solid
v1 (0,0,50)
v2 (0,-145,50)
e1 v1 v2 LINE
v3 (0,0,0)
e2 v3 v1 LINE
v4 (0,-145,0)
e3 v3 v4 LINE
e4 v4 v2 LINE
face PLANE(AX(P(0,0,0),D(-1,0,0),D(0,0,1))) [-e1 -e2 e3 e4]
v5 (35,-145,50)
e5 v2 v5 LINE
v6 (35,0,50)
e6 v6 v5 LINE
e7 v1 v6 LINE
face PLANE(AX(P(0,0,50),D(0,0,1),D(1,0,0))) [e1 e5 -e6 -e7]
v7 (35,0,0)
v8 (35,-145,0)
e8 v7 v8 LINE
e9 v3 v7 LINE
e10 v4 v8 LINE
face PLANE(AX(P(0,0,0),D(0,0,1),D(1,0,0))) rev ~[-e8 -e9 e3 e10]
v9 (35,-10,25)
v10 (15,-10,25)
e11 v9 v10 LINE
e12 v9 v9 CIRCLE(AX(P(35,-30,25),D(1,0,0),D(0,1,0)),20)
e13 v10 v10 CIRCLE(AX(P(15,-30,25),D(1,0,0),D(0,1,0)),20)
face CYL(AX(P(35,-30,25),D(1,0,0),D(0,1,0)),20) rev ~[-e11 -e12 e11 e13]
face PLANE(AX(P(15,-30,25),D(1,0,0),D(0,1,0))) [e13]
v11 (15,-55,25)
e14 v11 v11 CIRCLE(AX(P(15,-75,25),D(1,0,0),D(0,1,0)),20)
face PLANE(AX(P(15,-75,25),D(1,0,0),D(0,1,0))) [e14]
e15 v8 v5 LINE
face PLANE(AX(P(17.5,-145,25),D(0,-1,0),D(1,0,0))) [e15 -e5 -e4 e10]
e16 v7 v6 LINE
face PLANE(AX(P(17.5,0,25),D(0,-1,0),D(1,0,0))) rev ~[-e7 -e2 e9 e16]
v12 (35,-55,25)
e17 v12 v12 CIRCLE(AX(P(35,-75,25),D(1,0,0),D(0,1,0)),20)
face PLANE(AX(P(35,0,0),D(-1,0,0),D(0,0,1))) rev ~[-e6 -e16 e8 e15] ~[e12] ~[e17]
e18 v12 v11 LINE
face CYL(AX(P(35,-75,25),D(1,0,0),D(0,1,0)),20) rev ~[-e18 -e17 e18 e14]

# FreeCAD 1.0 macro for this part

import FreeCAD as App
import Part
import Sketcher
from FreeCAD import Vector
Q = App.Units.Quantity


def add_polygon(sketch, points):
    """Adds a closed chain of lines whose ends are joined by coincident constraints."""
    first, n = sketch.GeometryCount, len(points)
    for a, b in zip(points, points[1:] + points[:1]):
        sketch.addGeometry(Part.LineSegment(App.Vector(*a, 0), App.Vector(*b, 0)), False)
    for i in range(n):
        sketch.addConstraint(Sketcher.Constraint("Coincident", first + i, 2, first + (i + 1) % n, 1))

doc = App.newDocument("Part")
body = doc.addObject("PartDesign::Body", "Body")

# Sketch on XZ plane
sketch1 = body.newObject("Sketcher::SketchObject", "Sketch")
sketch1.AttachmentSupport = (doc.getObject("XZ_Plane"), [""])
sketch1.MapMode = "FlatFace"
add_polygon(sketch1, [(0, 50), (0, 0), (35, 0), (35, 50)])  # lines 0-3
sketch1.addConstraint([
    Sketcher.Constraint("Vertical", 0),
    Sketcher.Constraint("Horizontal", 1),
    Sketcher.Constraint("Vertical", 2),
    Sketcher.Constraint("Horizontal", 3),
    Sketcher.Constraint("Coincident", 0, 2, -1, 1),
    Sketcher.Constraint("DistanceX", 1, 1, 1, 2, Q("35 mm")),
    Sketcher.Constraint("DistanceY", 0, 2, 0, 1, Q("50 mm")),
])
pad1 = body.newObject("PartDesign::Pad", "Pad")
pad1.Profile = sketch1
pad1.Length = 145

# Sketch on YZ plane
sketch2 = body.newObject("Sketcher::SketchObject", "Sketch001")
sketch2.AttachmentSupport = (doc.getObject("YZ_Plane"), [""])
sketch2.MapMode = "FlatFace"
sketch2.AttachmentOffset = App.Placement(Vector(0, 0, 35), App.Rotation())
sketch2.addGeometry([
    Part.Circle(Vector(-75, 25, 0), Vector(0, 0, 1), 20),
    Part.Circle(Vector(-30, 25, 0), Vector(0, 0, 1), 20),
], False)
sketch2.addConstraint([
    Sketcher.Constraint("Equal", 0, 1),
    Sketcher.Constraint("Horizontal", 0, 3, 1, 3),
    Sketcher.Constraint("Diameter", 0, Q("40 mm")),
    Sketcher.Constraint("DistanceX", 0, 3, -1, 1, Q("75 mm")),
    Sketcher.Constraint("DistanceY", -1, 1, 0, 3, Q("25 mm")),
    Sketcher.Constraint("DistanceX", 1, 3, -1, 1, Q("30 mm")),
])
pocket1 = body.newObject("PartDesign::Pocket", "Pocket")
pocket1.Profile = sketch2
pocket1.Length = 20

doc.recompute()
